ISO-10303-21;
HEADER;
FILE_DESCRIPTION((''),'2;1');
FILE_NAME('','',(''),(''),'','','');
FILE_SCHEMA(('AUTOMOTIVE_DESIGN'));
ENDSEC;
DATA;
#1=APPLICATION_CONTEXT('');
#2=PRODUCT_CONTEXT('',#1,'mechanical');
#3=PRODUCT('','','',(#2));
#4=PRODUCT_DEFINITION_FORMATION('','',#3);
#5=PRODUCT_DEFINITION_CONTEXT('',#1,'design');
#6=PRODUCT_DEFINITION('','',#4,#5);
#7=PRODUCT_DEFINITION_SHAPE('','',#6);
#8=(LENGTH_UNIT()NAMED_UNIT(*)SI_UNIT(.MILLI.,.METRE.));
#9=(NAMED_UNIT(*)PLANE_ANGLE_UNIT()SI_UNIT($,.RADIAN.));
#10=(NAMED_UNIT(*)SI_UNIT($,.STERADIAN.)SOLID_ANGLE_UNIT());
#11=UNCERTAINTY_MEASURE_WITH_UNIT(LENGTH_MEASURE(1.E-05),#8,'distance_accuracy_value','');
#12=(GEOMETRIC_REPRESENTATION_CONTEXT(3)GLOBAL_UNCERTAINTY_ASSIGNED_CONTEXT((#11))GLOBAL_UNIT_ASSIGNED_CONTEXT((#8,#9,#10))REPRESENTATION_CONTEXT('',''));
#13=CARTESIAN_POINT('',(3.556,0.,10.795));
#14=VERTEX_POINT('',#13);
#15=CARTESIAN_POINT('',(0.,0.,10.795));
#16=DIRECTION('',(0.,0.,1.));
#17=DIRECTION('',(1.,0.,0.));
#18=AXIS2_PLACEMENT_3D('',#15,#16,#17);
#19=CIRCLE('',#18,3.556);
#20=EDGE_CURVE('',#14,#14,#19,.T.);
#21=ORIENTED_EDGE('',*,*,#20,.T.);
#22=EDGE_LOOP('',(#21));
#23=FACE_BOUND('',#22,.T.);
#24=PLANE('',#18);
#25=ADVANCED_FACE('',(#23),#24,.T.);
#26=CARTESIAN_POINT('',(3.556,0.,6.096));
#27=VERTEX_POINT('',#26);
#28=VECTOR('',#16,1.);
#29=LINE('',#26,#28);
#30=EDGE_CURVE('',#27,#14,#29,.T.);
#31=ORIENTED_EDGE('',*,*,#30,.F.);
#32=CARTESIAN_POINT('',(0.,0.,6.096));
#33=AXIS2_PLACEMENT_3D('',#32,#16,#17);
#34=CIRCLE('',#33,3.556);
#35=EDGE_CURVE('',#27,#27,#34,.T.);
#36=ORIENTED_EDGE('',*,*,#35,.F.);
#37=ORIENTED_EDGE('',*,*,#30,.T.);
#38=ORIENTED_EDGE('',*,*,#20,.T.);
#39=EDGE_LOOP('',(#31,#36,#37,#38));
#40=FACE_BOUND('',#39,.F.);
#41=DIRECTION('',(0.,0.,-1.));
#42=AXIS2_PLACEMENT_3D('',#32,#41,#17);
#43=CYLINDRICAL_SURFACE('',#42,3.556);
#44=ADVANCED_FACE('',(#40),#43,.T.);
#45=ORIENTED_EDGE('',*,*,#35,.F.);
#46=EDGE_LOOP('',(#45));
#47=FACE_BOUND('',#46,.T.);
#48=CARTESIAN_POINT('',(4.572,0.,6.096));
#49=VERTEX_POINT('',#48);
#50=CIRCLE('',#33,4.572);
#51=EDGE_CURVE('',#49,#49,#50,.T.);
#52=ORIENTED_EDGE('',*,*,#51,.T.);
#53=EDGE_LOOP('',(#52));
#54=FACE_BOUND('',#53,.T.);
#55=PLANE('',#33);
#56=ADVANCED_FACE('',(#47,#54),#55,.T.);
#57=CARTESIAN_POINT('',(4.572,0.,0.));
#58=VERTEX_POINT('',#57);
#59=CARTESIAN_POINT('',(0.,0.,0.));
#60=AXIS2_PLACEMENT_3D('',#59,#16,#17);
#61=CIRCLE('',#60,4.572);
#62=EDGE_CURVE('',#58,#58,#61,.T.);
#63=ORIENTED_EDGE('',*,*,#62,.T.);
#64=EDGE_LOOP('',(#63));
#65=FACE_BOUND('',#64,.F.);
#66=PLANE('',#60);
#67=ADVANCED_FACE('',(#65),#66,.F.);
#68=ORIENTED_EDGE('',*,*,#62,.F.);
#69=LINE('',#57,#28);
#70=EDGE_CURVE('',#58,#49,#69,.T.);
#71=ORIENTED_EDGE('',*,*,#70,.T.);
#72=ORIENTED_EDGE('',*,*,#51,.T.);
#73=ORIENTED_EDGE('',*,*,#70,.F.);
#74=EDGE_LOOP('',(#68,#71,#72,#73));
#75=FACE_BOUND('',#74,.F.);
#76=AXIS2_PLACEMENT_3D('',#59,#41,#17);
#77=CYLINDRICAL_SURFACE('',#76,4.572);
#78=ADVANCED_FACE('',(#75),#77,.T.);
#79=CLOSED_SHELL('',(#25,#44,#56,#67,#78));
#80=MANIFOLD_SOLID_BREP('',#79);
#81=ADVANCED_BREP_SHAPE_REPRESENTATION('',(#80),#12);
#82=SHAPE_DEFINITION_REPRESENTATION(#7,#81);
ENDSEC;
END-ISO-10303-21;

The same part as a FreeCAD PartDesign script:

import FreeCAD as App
import Part
import Sketcher
Q = App.Units.Quantity

doc = App.newDocument("Part")
params = doc.addObject("Spreadsheet::Sheet", "Params")
for row, (alias, value) in enumerate([
    ("sketch1_diameter", "0.36 in"),
    ("pad1_length", "0.24 in"),
    ("sketch2_diameter", "0.28 in"),
    ("pad2_length", "0.185 in"),
], start=1):
    params.set(f"A{row}", alias)
    params.set(f"B{row}", "=" + value)
    params.setAlias(f"B{row}", alias)

body = doc.addObject("PartDesign::Body", "Body")

# Sketch on XY plane
sketch1 = body.newObject("Sketcher::SketchObject", "Sketch")
sketch1.AttachmentSupport = (doc.getObject("XY_Plane"), [""])
sketch1.MapMode = "FlatFace"
sketch1.addGeometry(Part.Circle(App.Vector(0, 0, 0), App.Vector(0, 0, 1), 4.572), False)
sketch1.addConstraint(Sketcher.Constraint("Coincident", 0, 3, -1, 1))
sketch1.addConstraint(Sketcher.Constraint("Diameter", 0, Q("0.36 in")))
sketch1.setExpression("Constraints[1]", "Params.sketch1_diameter")
pad1 = body.newObject("PartDesign::Pad", "Pad")
pad1.Profile = sketch1
pad1.setExpression("Length", "Params.pad1_length")

# Sketch on XY plane
sketch2 = body.newObject("Sketcher::SketchObject", "Sketch001")
sketch2.AttachmentSupport = (doc.getObject("XY_Plane"), [""])
sketch2.MapMode = "FlatFace"
sketch2.AttachmentOffset = App.Placement(App.Vector(0, 0, 0.24 * 25.4), App.Rotation())
sketch2.addGeometry(Part.Circle(App.Vector(0, 0, 0), App.Vector(0, 0, 1), 3.556), False)
sketch2.addConstraint(Sketcher.Constraint("Coincident", 0, 3, -1, 1))
sketch2.addConstraint(Sketcher.Constraint("Diameter", 0, Q("0.28 in")))
sketch2.setExpression("Constraints[1]", "Params.sketch2_diameter")
pad2 = body.newObject("PartDesign::Pad", "Pad001")
pad2.Profile = sketch2
pad2.setExpression("Length", "Params.pad2_length")

doc.recompute()
